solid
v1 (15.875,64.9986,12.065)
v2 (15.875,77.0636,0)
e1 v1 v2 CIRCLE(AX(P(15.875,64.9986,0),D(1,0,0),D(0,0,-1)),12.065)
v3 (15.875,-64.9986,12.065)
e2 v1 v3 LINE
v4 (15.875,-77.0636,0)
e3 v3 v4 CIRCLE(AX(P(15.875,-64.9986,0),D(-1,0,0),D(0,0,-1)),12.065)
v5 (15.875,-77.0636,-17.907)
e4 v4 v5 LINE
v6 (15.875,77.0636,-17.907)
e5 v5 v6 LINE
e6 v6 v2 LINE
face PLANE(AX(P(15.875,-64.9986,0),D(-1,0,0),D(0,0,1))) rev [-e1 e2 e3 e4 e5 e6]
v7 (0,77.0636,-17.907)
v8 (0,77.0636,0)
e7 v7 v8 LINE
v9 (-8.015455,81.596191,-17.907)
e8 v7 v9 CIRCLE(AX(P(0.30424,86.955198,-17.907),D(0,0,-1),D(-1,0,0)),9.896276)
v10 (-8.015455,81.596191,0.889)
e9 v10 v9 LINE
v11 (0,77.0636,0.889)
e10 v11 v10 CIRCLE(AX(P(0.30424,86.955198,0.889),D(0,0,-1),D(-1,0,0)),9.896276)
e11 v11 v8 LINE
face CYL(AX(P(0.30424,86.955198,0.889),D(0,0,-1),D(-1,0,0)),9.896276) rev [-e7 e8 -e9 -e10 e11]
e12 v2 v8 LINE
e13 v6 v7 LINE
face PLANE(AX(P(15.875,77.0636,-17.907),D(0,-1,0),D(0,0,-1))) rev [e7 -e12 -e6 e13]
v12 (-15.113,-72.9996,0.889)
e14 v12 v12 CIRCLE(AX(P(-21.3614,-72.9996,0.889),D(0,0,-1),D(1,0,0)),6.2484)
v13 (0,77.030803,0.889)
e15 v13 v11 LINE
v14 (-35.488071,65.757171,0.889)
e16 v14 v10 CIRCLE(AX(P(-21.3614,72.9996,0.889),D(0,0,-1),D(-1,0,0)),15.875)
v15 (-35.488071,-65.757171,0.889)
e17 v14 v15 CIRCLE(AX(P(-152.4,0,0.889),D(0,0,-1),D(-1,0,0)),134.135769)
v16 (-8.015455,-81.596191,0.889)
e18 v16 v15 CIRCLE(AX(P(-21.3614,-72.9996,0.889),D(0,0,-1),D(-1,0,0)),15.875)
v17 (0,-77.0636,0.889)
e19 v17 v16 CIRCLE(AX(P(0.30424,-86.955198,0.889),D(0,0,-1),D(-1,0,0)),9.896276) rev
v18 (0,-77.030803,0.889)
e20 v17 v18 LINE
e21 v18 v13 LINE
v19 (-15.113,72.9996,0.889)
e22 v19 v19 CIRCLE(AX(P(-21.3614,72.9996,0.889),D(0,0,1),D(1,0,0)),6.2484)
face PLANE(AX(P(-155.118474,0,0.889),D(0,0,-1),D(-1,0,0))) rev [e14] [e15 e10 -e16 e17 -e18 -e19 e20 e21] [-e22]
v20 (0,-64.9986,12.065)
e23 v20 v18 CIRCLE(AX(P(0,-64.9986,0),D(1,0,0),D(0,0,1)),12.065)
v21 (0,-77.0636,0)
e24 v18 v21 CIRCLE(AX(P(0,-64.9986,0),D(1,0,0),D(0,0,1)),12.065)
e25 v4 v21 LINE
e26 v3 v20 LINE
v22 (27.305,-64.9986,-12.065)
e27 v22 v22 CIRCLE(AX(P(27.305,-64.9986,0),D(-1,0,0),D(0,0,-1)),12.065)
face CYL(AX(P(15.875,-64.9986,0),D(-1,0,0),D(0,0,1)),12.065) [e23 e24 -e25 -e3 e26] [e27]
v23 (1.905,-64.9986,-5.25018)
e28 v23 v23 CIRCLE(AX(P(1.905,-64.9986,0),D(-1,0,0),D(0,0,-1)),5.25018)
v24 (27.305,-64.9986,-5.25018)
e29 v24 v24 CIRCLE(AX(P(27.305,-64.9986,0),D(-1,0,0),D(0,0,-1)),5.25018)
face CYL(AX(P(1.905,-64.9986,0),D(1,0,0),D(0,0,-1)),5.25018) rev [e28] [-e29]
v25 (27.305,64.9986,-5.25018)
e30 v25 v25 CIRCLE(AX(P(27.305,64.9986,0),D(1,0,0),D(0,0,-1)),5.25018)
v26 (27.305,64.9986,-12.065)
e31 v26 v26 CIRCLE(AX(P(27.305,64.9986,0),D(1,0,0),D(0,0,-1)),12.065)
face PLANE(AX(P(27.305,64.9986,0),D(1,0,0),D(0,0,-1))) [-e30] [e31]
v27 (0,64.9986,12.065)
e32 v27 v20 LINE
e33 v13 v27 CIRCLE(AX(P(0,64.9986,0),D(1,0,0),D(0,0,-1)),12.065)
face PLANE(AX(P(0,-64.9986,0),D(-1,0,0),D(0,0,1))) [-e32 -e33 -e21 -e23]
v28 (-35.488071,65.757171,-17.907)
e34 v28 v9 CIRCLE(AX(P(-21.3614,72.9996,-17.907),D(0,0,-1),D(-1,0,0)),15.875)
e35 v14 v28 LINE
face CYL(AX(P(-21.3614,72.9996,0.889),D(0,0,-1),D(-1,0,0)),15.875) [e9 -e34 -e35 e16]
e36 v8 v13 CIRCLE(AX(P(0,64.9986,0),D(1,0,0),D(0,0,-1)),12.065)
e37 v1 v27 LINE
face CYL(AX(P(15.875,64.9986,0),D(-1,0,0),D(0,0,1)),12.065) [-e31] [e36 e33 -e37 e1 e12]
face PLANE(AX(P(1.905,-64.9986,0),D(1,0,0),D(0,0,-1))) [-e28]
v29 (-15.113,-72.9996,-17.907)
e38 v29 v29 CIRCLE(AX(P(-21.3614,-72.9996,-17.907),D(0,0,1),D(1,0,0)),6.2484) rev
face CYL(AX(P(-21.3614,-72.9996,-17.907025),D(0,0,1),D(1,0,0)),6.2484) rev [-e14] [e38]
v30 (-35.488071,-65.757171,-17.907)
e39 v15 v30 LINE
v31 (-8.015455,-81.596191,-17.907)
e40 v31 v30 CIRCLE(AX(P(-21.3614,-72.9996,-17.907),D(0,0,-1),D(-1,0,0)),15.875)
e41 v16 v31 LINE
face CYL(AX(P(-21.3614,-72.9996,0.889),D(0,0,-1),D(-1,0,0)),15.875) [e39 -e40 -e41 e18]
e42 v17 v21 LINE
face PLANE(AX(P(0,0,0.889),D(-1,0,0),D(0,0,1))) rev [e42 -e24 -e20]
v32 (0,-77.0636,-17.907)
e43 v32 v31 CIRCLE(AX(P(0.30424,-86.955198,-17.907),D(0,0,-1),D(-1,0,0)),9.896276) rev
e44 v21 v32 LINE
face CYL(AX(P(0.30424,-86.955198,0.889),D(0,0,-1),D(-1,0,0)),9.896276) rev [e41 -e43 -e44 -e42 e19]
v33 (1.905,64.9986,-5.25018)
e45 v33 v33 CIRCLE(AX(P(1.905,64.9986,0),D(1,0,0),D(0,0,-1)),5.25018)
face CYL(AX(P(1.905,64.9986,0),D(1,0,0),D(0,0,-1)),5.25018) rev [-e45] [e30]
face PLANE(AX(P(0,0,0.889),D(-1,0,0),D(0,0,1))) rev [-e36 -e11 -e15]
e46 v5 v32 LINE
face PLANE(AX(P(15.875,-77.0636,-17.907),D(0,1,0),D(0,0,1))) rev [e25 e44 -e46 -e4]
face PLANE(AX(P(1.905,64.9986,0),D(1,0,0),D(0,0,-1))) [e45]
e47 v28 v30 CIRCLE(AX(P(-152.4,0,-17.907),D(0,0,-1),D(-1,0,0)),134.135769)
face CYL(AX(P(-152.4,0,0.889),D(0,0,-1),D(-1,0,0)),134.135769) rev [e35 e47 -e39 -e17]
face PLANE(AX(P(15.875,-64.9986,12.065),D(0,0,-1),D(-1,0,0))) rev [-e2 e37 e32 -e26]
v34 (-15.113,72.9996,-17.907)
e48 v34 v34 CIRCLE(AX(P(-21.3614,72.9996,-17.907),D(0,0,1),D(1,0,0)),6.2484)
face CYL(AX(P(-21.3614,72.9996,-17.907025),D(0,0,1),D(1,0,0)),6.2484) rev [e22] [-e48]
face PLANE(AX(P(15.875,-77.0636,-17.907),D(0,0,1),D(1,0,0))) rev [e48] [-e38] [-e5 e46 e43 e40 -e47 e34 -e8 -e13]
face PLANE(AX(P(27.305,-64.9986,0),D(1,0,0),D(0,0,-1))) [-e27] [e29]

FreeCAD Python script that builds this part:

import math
import FreeCAD as App
import Part
import Sketcher
from FreeCAD import Vector
Q = App.Units.Quantity

doc = App.newDocument("Part")
body = doc.addObject("PartDesign::Body", "Body")

# Sketch on YZ plane
sketch1 = body.newObject("Sketcher::SketchObject", "Sketch")
sketch1.AttachmentSupport = (doc.getObject("YZ_Plane"), [""])
sketch1.MapMode = "FlatFace"
sketch1.addGeometry([
    Part.LineSegment(Vector(-77, -18, 0), Vector(77, -18, 0)),  # 0
    Part.LineSegment(Vector(77, -18, 0), Vector(77, 0, 0)),  # 1
    Part.ArcOfCircle(Part.Circle(Vector(65, 0, 0), Vector(0, 0, 1), 12), math.radians(0), math.radians(90)),  # 2
    Part.LineSegment(Vector(65, 12, 0), Vector(-65, 12, 0)),  # 3
    Part.ArcOfCircle(Part.Circle(Vector(-65, 0, 0), Vector(0, 0, 1), 12), math.radians(90), math.radians(180)),  # 4
    Part.LineSegment(Vector(-77, 0, 0), Vector(-77, -18, 0)),  # 5
], False)
sketch1.addConstraint([
    Sketcher.Constraint("Coincident", 0, 2, 1, 1),
    Sketcher.Constraint("Tangent", 1, 2, 2, 1),
    Sketcher.Constraint("Tangent", 2, 2, 3, 1),
    Sketcher.Constraint("Tangent", 3, 2, 4, 1),
    Sketcher.Constraint("Tangent", 4, 2, 5, 1),
    Sketcher.Constraint("Coincident", 5, 2, 0, 1),
    Sketcher.Constraint("Horizontal", 0),
    Sketcher.Constraint("Vertical", 1),
    Sketcher.Constraint("Horizontal", 3),
    Sketcher.Constraint("Vertical", 5),
    Sketcher.Constraint("Equal", 2, 4),
    Sketcher.Constraint("Symmetric", 2, 3, 4, 3, -1, 1),
    Sketcher.Constraint("Radius", 2, Q("0.475 in")),
    Sketcher.Constraint("DistanceX", 0, 1, 0, 2, Q("6.068 in")),
    Sketcher.Constraint("DistanceY", 1, 1, 1, 2, Q("0.705 in")),
])
pad1 = body.newObject("PartDesign::Pad", "Pad")
pad1.Profile = sketch1
pad1.Length = Q("0.625 in")

# Sketch on YZ plane
sketch2 = body.newObject("Sketcher::SketchObject", "Sketch001")
sketch2.AttachmentSupport = (doc.getObject("YZ_Plane"), [""])
sketch2.MapMode = "FlatFace"
sketch2.AttachmentOffset = App.Placement(Vector(0, 0, 0.625 * 25.4), App.Rotation())
sketch2.addGeometry(Part.Circle(Vector(65, 0, 0), Vector(0, 0, 1), 12), False)
sketch2.addConstraint([
    Sketcher.Constraint("PointOnObject", 0, 3, -1),
    Sketcher.Constraint("Diameter", 0, Q("0.95 in")),
    Sketcher.Constraint("DistanceX", -1, 1, 0, 3, Q("2.559 in")),
])
pad2 = body.newObject("PartDesign::Pad", "Pad001")
pad2.Profile = sketch2
pad2.Length = Q("0.45 in")
doc.recompute()

mirrored = body.newObject("PartDesign::Mirrored", "Mirrored")
mirrored.Originals = [pad2]
mirrored.MirrorPlane = (doc.getObject("XZ_Plane"), [""])
body.Tip = mirrored

# Sketch on XY plane
sketch3 = body.newObject("Sketcher::SketchObject", "Sketch002")
sketch3.AttachmentSupport = (doc.getObject("XY_Plane"), [""])
sketch3.MapMode = "FlatFace"
sketch3.AttachmentOffset = App.Placement(Vector(0, 0, -0.705 * 25.4), App.Rotation())
sketch3.addGeometry([
    Part.ArcOfCircle(Part.Circle(Vector(0, 87, 0), Vector(0, 0, 1), 10), math.radians(-147), math.radians(-92)),  # 0
    Part.LineSegment(Vector(0, 77, 0), Vector(0, -77, 0)),  # 1
    Part.ArcOfCircle(Part.Circle(Vector(0, -87, 0), Vector(0, 0, 1), 10), math.radians(92), math.radians(147)),  # 2
    Part.ArcOfCircle(Part.Circle(Vector(-21, -73, 0), Vector(0, 0, 1), 16), math.radians(153), math.radians(327)),  # 3
    Part.ArcOfCircle(Part.Circle(Vector(-152, 0, 0), Vector(0, 0, 1), 134), math.radians(-29), math.radians(29)),  # 4
    Part.ArcOfCircle(Part.Circle(Vector(-21, 73, 0), Vector(0, 0, 1), 16), math.radians(33), math.radians(207)),  # 5
], False)
sketch3.addConstraint([
    Sketcher.Constraint("Coincident", 0, 2, 1, 1),
    Sketcher.Constraint("Coincident", 1, 2, 2, 1),
    Sketcher.Constraint("Tangent", 2, 2, 3, 2),
    Sketcher.Constraint("Coincident", 3, 1, 4, 1),
    Sketcher.Constraint("Coincident", 4, 2, 5, 2),
    Sketcher.Constraint("Tangent", 5, 1, 0, 1),
    Sketcher.Constraint("Vertical", 1),
    Sketcher.Constraint("Equal", 0, 2),
    Sketcher.Constraint("Equal", 3, 5),
    Sketcher.Constraint("Symmetric", 0, 2, 1, 2, -1, 1),
    Sketcher.Constraint("Symmetric", 3, 3, 5, 3, -1),
    Sketcher.Constraint("PointOnObject", 4, 3, -1),
    Sketcher.Constraint("DistanceX", 4, 3, -1, 1, Q("6 in")),
    Sketcher.Constraint("Radius", 3, Q("0.625 in")),
    Sketcher.Constraint("DistanceY", 1, 2, 1, 1, Q("6.068 in")),
    Sketcher.Constraint("DistanceY", 5, 3, 0, 2, Q("0.16 in")),
    Sketcher.Constraint("DistanceX", 3, 3, -1, 1, Q("0.841 in")),
    Sketcher.Constraint("Radius", 4, 134.135769),
    Sketcher.Constraint("Radius", 0, 9.896276),
])
pad3 = body.newObject("PartDesign::Pad", "Pad002")
pad3.Profile = sketch3
pad3.Length = Q("0.74 in")

# Sketch on XY plane
sketch4 = body.newObject("Sketcher::SketchObject", "Sketch003")
sketch4.AttachmentSupport = (doc.getObject("XY_Plane"), [""])
sketch4.MapMode = "FlatFace"
sketch4.AttachmentOffset = App.Placement(Vector(0, 0, 0.035 * 25.4), App.Rotation())
sketch4.addGeometry(Part.Circle(Vector(-21, 73, 0), Vector(0, 0, 1), 6), False)
sketch4.addConstraint([
    Sketcher.Constraint("Diameter", 0, Q("0.492 in")),
    Sketcher.Constraint("DistanceX", 0, 3, -1, 1, Q("0.841 in")),
    Sketcher.Constraint("DistanceY", -1, 1, 0, 3, Q("2.874 in")),
])
pocket1 = body.newObject("PartDesign::Pocket", "Pocket")
pocket1.Profile = sketch4
pocket1.Type = "ThroughAll"

# Sketch on YZ plane
sketch5 = body.newObject("Sketcher::SketchObject", "Sketch004")
sketch5.AttachmentSupport = (doc.getObject("YZ_Plane"), [""])
sketch5.MapMode = "FlatFace"
sketch5.AttachmentOffset = App.Placement(Vector(0, 0, 1.075 * 25.4), App.Rotation())
sketch5.addGeometry(Part.Circle(Vector(65, 0, 0), Vector(0, 0, 1), 5), False)
sketch5.addConstraint([
    Sketcher.Constraint("PointOnObject", 0, 3, -1),
    Sketcher.Constraint("Diameter", 0, Q("0.4134 in")),
    Sketcher.Constraint("DistanceX", -1, 1, 0, 3, Q("2.559 in")),
])
pocket2 = body.newObject("PartDesign::Pocket", "Pocket001")
pocket2.Profile = sketch5
pocket2.Length = Q("1 in")
doc.recompute()

mirrored2 = body.newObject("PartDesign::Mirrored", "Mirrored001")
mirrored2.Originals = [pocket1, pocket2]
mirrored2.MirrorPlane = (doc.getObject("XZ_Plane"), [""])
body.Tip = mirrored2

doc.recompute()
